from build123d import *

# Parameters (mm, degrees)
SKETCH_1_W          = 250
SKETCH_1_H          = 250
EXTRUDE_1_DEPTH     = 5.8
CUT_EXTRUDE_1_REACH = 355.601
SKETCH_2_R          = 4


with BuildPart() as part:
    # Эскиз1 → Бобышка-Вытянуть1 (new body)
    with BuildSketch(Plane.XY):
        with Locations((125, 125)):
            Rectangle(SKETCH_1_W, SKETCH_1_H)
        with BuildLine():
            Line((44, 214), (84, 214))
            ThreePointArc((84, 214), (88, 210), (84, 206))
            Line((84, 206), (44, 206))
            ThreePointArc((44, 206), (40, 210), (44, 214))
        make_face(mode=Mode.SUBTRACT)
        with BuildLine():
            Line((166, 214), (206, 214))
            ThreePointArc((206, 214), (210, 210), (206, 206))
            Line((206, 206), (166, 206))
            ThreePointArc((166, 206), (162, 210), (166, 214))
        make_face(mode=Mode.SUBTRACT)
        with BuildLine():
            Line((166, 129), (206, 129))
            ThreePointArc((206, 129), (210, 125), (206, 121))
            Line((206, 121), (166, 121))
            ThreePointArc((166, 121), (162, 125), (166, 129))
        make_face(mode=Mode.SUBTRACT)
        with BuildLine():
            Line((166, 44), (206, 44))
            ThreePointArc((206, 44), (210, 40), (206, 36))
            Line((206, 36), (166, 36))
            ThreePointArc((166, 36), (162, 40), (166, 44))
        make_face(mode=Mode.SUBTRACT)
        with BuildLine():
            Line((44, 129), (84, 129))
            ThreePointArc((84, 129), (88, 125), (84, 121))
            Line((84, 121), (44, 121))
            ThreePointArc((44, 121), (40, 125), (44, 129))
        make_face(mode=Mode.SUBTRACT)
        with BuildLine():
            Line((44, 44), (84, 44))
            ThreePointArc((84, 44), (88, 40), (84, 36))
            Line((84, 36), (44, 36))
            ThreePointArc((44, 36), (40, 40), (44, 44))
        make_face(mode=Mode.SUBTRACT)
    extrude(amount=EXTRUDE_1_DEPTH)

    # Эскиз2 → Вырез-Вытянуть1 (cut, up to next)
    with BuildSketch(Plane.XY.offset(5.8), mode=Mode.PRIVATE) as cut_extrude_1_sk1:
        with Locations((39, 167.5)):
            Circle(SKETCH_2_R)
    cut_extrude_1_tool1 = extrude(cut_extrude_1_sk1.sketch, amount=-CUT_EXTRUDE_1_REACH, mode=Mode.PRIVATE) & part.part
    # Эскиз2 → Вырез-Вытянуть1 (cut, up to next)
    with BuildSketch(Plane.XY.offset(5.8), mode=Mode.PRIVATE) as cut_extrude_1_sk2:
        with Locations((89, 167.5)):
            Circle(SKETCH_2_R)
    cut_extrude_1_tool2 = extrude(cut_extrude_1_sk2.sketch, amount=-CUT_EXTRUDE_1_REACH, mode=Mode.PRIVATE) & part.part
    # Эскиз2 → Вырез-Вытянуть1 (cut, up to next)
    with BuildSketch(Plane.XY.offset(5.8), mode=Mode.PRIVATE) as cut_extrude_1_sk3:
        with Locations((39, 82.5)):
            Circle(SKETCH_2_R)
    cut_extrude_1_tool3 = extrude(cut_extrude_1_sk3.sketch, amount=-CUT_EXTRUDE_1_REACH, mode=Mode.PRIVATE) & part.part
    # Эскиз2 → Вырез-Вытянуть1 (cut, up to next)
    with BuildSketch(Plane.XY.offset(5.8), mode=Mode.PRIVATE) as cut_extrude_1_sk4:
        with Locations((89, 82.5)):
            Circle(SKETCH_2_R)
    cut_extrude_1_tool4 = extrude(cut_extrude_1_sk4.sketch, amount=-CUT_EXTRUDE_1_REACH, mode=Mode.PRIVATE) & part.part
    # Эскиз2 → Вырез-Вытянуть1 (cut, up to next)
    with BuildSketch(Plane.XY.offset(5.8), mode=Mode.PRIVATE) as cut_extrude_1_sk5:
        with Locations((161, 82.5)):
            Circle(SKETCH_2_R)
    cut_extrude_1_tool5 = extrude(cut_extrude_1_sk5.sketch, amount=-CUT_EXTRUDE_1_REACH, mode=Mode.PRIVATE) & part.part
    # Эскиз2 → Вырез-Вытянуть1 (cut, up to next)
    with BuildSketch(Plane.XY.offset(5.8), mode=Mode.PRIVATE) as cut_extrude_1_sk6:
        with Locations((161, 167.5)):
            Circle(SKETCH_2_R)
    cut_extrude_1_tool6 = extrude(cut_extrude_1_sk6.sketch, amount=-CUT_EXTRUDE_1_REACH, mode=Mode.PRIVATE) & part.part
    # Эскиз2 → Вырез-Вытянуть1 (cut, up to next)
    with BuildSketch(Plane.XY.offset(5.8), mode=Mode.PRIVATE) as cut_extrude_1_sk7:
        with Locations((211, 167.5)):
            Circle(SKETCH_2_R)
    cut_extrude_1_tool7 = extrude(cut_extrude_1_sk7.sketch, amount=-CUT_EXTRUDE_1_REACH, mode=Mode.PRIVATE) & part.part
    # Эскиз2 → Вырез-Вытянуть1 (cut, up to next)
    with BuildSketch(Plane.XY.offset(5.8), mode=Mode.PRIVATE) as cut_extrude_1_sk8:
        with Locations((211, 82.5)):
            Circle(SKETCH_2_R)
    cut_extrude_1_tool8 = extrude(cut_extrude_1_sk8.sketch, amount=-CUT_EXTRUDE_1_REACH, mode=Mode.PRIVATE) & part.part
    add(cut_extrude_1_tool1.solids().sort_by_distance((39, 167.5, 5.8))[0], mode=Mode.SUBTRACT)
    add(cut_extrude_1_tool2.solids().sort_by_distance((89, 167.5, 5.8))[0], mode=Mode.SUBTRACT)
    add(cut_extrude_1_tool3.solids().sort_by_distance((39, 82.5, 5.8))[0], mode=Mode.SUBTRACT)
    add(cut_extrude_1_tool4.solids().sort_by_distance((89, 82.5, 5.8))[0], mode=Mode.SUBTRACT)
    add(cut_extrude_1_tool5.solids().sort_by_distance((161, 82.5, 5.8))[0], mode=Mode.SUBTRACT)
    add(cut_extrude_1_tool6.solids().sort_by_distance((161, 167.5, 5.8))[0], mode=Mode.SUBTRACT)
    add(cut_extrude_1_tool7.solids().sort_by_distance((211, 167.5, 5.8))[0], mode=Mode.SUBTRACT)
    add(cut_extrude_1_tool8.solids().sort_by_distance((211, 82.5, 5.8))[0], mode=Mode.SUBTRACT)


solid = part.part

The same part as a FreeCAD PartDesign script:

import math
import FreeCAD as App
import Part
import Sketcher
Q = App.Units.Quantity


def add_polygon(sketch, points):
    """Adds a closed chain of lines whose ends are joined by coincident constraints."""
    first, n = sketch.GeometryCount, len(points)
    for a, b in zip(points, points[1:] + points[:1]):
        sketch.addGeometry(Part.LineSegment(App.Vector(*a, 0), App.Vector(*b, 0)), False)
    for i in range(n):
        sketch.addConstraint(Sketcher.Constraint("Coincident", first + i, 2, first + (i + 1) % n, 1))

doc = App.newDocument("Part")
body = doc.addObject("PartDesign::Body", "Body")

# Sketch on XY plane
sketch1 = body.newObject("Sketcher::SketchObject", "Sketch")
sketch1.AttachmentSupport = (doc.getObject("XY_Plane"), [""])
sketch1.MapMode = "FlatFace"
add_polygon(sketch1, [(0, 250), (0, 0), (250, 0), (250, 250)])  # lines 0-3
sketch1.addGeometry(Part.ArcOfCircle(Part.Circle(App.Vector(44, 40, 0), App.Vector(0, 0, 1), 4), math.radians(90), math.radians(270)), False)  # 4
sketch1.addGeometry(Part.LineSegment(App.Vector(44, 44, 0), App.Vector(84, 44, 0)), False)  # 5
sketch1.addGeometry(Part.ArcOfCircle(Part.Circle(App.Vector(84, 40, 0), App.Vector(0, 0, 1), 4), math.radians(-90), math.radians(90)), False)  # 6
sketch1.addGeometry(Part.LineSegment(App.Vector(84, 36, 0), App.Vector(44, 36, 0)), False)  # 7
sketch1.addGeometry(Part.ArcOfCircle(Part.Circle(App.Vector(166, 40, 0), App.Vector(0, 0, 1), 4), math.radians(90), math.radians(270)), False)  # 8
sketch1.addGeometry(Part.LineSegment(App.Vector(166, 44, 0), App.Vector(206, 44, 0)), False)  # 9
sketch1.addGeometry(Part.ArcOfCircle(Part.Circle(App.Vector(206, 40, 0), App.Vector(0, 0, 1), 4), math.radians(-90), math.radians(90)), False)  # 10
sketch1.addGeometry(Part.LineSegment(App.Vector(206, 36, 0), App.Vector(166, 36, 0)), False)  # 11
sketch1.addGeometry(Part.ArcOfCircle(Part.Circle(App.Vector(44, 125, 0), App.Vector(0, 0, 1), 4), math.radians(90), math.radians(270)), False)  # 12
sketch1.addGeometry(Part.LineSegment(App.Vector(44, 129, 0), App.Vector(84, 129, 0)), False)  # 13
sketch1.addGeometry(Part.ArcOfCircle(Part.Circle(App.Vector(84, 125, 0), App.Vector(0, 0, 1), 4), math.radians(-90), math.radians(90)), False)  # 14
sketch1.addGeometry(Part.LineSegment(App.Vector(84, 121, 0), App.Vector(44, 121, 0)), False)  # 15
sketch1.addGeometry(Part.ArcOfCircle(Part.Circle(App.Vector(44, 210, 0), App.Vector(0, 0, 1), 4), math.radians(90), math.radians(270)), False)  # 16
sketch1.addGeometry(Part.LineSegment(App.Vector(44, 214, 0), App.Vector(84, 214, 0)), False)  # 17
sketch1.addGeometry(Part.ArcOfCircle(Part.Circle(App.Vector(84, 210, 0), App.Vector(0, 0, 1), 4), math.radians(-90), math.radians(90)), False)  # 18
sketch1.addGeometry(Part.LineSegment(App.Vector(84, 206, 0), App.Vector(44, 206, 0)), False)  # 19
sketch1.addGeometry(Part.ArcOfCircle(Part.Circle(App.Vector(166, 125, 0), App.Vector(0, 0, 1), 4), math.radians(90), math.radians(270)), False)  # 20
sketch1.addGeometry(Part.LineSegment(App.Vector(166, 129, 0), App.Vector(206, 129, 0)), False)  # 21
sketch1.addGeometry(Part.ArcOfCircle(Part.Circle(App.Vector(206, 125, 0), App.Vector(0, 0, 1), 4), math.radians(-90), math.radians(90)), False)  # 22
sketch1.addGeometry(Part.LineSegment(App.Vector(206, 121, 0), App.Vector(166, 121, 0)), False)  # 23
sketch1.addGeometry(Part.ArcOfCircle(Part.Circle(App.Vector(166, 210, 0), App.Vector(0, 0, 1), 4), math.radians(90), math.radians(270)), False)  # 24
sketch1.addGeometry(Part.LineSegment(App.Vector(166, 214, 0), App.Vector(206, 214, 0)), False)  # 25
sketch1.addGeometry(Part.ArcOfCircle(Part.Circle(App.Vector(206, 210, 0), App.Vector(0, 0, 1), 4), math.radians(-90), math.radians(90)), False)  # 26
sketch1.addGeometry(Part.LineSegment(App.Vector(206, 206, 0), App.Vector(166, 206, 0)), False)  # 27
sketch1.addConstraint(Sketcher.Constraint("Tangent", 4, 1, 5, 1))
sketch1.addConstraint(Sketcher.Constraint("Tangent", 5, 2, 6, 2))
sketch1.addConstraint(Sketcher.Constraint("Tangent", 6, 1, 7, 1))
sketch1.addConstraint(Sketcher.Constraint("Tangent", 7, 2, 4, 2))
sketch1.addConstraint(Sketcher.Constraint("Tangent", 8, 1, 9, 1))
sketch1.addConstraint(Sketcher.Constraint("Tangent", 9, 2, 10, 2))
sketch1.addConstraint(Sketcher.Constraint("Tangent", 10, 1, 11, 1))
sketch1.addConstraint(Sketcher.Constraint("Tangent", 11, 2, 8, 2))
sketch1.addConstraint(Sketcher.Constraint("Tangent", 12, 1, 13, 1))
sketch1.addConstraint(Sketcher.Constraint("Tangent", 13, 2, 14, 2))
sketch1.addConstraint(Sketcher.Constraint("Tangent", 14, 1, 15, 1))
sketch1.addConstraint(Sketcher.Constraint("Tangent", 15, 2, 12, 2))
sketch1.addConstraint(Sketcher.Constraint("Tangent", 16, 1, 17, 1))
sketch1.addConstraint(Sketcher.Constraint("Tangent", 17, 2, 18, 2))
sketch1.addConstraint(Sketcher.Constraint("Tangent", 18, 1, 19, 1))
sketch1.addConstraint(Sketcher.Constraint("Tangent", 19, 2, 16, 2))
sketch1.addConstraint(Sketcher.Constraint("Tangent", 20, 1, 21, 1))
sketch1.addConstraint(Sketcher.Constraint("Tangent", 21, 2, 22, 2))
sketch1.addConstraint(Sketcher.Constraint("Tangent", 22, 1, 23, 1))
sketch1.addConstraint(Sketcher.Constraint("Tangent", 23, 2, 20, 2))
sketch1.addConstraint(Sketcher.Constraint("Tangent", 24, 1, 25, 1))
sketch1.addConstraint(Sketcher.Constraint("Tangent", 25, 2, 26, 2))
sketch1.addConstraint(Sketcher.Constraint("Tangent", 26, 1, 27, 1))
sketch1.addConstraint(Sketcher.Constraint("Tangent", 27, 2, 24, 2))
sketch1.addConstraint(Sketcher.Constraint("Vertical", 0))
sketch1.addConstraint(Sketcher.Constraint("Horizontal", 1))
sketch1.addConstraint(Sketcher.Constraint("Vertical", 2))
sketch1.addConstraint(Sketcher.Constraint("Horizontal", 3))
sketch1.addConstraint(Sketcher.Constraint("Horizontal", 5))
sketch1.addConstraint(Sketcher.Constraint("Horizontal", 7))
sketch1.addConstraint(Sketcher.Constraint("Horizontal", 9))
sketch1.addConstraint(Sketcher.Constraint("Horizontal", 11))
sketch1.addConstraint(Sketcher.Constraint("Horizontal", 13))
sketch1.addConstraint(Sketcher.Constraint("Horizontal", 15))
sketch1.addConstraint(Sketcher.Constraint("Horizontal", 17))
sketch1.addConstraint(Sketcher.Constraint("Horizontal", 19))
sketch1.addConstraint(Sketcher.Constraint("Horizontal", 21))
sketch1.addConstraint(Sketcher.Constraint("Horizontal", 23))
sketch1.addConstraint(Sketcher.Constraint("Horizontal", 25))
sketch1.addConstraint(Sketcher.Constraint("Horizontal", 27))
sketch1.addConstraint(Sketcher.Constraint("Coincident", 0, 2, -1, 1))
sketch1.addConstraint(Sketcher.Constraint("Equal", 6, 8))
sketch1.addConstraint(Sketcher.Constraint("Equal", 10, 12))
sketch1.addConstraint(Sketcher.Constraint("Equal", 14, 16))
sketch1.addConstraint(Sketcher.Constraint("Equal", 18, 20))
sketch1.addConstraint(Sketcher.Constraint("Equal", 22, 24))
sketch1.addConstraint(Sketcher.Constraint("Horizontal", 6, 3, 8, 3))
sketch1.addConstraint(Sketcher.Constraint("Horizontal", 14, 3, 20, 3))
sketch1.addConstraint(Sketcher.Constraint("Horizontal", 18, 3, 24, 3))
sketch1.addConstraint(Sketcher.Constraint("Vertical", 4, 3, 12, 3))
sketch1.addConstraint(Sketcher.Constraint("Vertical", 6, 3, 14, 3))
sketch1.addConstraint(Sketcher.Constraint("Vertical", 12, 3, 16, 3))
sketch1.addConstraint(Sketcher.Constraint("Vertical", 14, 3, 18, 3))
sketch1.addConstraint(Sketcher.Constraint("Vertical", 8, 3, 20, 3))
sketch1.addConstraint(Sketcher.Constraint("Vertical", 10, 3, 22, 3))
sketch1.addConstraint(Sketcher.Constraint("Vertical", 20, 3, 24, 3))
sketch1.addConstraint(Sketcher.Constraint("Vertical", 22, 3, 26, 3))
sketch1.addConstraint(Sketcher.Constraint("Equal", 7, 9))
sketch1.addConstraint(Sketcher.Constraint("Equal", 3, 0))
sketch1.addConstraint(Sketcher.Constraint("Radius", 4, Q("4 mm")))
sketch1.addConstraint(Sketcher.Constraint("DistanceX", 1, 1, 1, 2, Q("250 mm")))
sketch1.addConstraint(Sketcher.Constraint("DistanceX", 5, 1, 5, 2, Q("40 mm")))
sketch1.addConstraint(Sketcher.Constraint("DistanceX", -1, 1, 4, 3, Q("44 mm")))
sketch1.addConstraint(Sketcher.Constraint("DistanceY", -1, 1, 4, 3, Q("40 mm")))
sketch1.addConstraint(Sketcher.Constraint("DistanceX", -1, 1, 8, 3, Q("166 mm")))
sketch1.addConstraint(Sketcher.Constraint("DistanceY", -1, 1, 12, 3, Q("125 mm")))
sketch1.addConstraint(Sketcher.Constraint("DistanceY", -1, 1, 16, 3, Q("210 mm")))
pad1 = body.newObject("PartDesign::Pad", "Pad")
pad1.Profile = sketch1
pad1.Length = 5.8

# Sketch on XY plane
sketch2 = body.newObject("Sketcher::SketchObject", "Sketch001")
sketch2.AttachmentSupport = (doc.getObject("XY_Plane"), [""])
sketch2.MapMode = "FlatFace"
sketch2.AttachmentOffset = App.Placement(App.Vector(0, 0, 5.8), App.Rotation())
sketch2.addGeometry(Part.Circle(App.Vector(39, 167.5, 0), App.Vector(0, 0, 1), 4), False)
sketch2.addConstraint(Sketcher.Constraint("Diameter", 0, Q("8 mm")))
sketch2.addConstraint(Sketcher.Constraint("DistanceX", -1, 1, 0, 3, Q("39 mm")))
sketch2.addConstraint(Sketcher.Constraint("DistanceY", -1, 1, 0, 3, Q("167.5 mm")))
pocket1 = body.newObject("PartDesign::Pocket", "Pocket")
pocket1.Profile = sketch2
pocket1.Type = "UpToFirst"

# Sketch on XY plane
sketch3 = body.newObject("Sketcher::SketchObject", "Sketch002")
sketch3.AttachmentSupport = (doc.getObject("XY_Plane"), [""])
sketch3.MapMode = "FlatFace"
sketch3.AttachmentOffset = App.Placement(App.Vector(0, 0, 5.8), App.Rotation())
sketch3.addGeometry(Part.Circle(App.Vector(89, 167.5, 0), App.Vector(0, 0, 1), 4), False)
sketch3.addConstraint(Sketcher.Constraint("Diameter", 0, Q("8 mm")))
sketch3.addConstraint(Sketcher.Constraint("DistanceX", -1, 1, 0, 3, Q("89 mm")))
sketch3.addConstraint(Sketcher.Constraint("DistanceY", -1, 1, 0, 3, Q("167.5 mm")))
pocket2 = body.newObject("PartDesign::Pocket", "Pocket001")
pocket2.Profile = sketch3
pocket2.Type = "UpToFirst"

# Sketch on XY plane
sketch4 = body.newObject("Sketcher::SketchObject", "Sketch003")
sketch4.AttachmentSupport = (doc.getObject("XY_Plane"), [""])
sketch4.MapMode = "FlatFace"
sketch4.AttachmentOffset = App.Placement(App.Vector(0, 0, 5.8), App.Rotation())
sketch4.addGeometry(Part.Circle(App.Vector(39, 82.5, 0), App.Vector(0, 0, 1), 4), False)
sketch4.addConstraint(Sketcher.Constraint("Diameter", 0, Q("8 mm")))
sketch4.addConstraint(Sketcher.Constraint("DistanceX", -1, 1, 0, 3, Q("39 mm")))
sketch4.addConstraint(Sketcher.Constraint("DistanceY", -1, 1, 0, 3, Q("82.5 mm")))
pocket3 = body.newObject("PartDesign::Pocket", "Pocket002")
pocket3.Profile = sketch4
pocket3.Type = "UpToFirst"

# Sketch on XY plane
sketch5 = body.newObject("Sketcher::SketchObject", "Sketch004")
sketch5.AttachmentSupport = (doc.getObject("XY_Plane"), [""])
sketch5.MapMode = "FlatFace"
sketch5.AttachmentOffset = App.Placement(App.Vector(0, 0, 5.8), App.Rotation())
sketch5.addGeometry(Part.Circle(App.Vector(89, 82.5, 0), App.Vector(0, 0, 1), 4), False)
sketch5.addConstraint(Sketcher.Constraint("Diameter", 0, Q("8 mm")))
sketch5.addConstraint(Sketcher.Constraint("DistanceX", -1, 1, 0, 3, Q("89 mm")))
sketch5.addConstraint(Sketcher.Constraint("DistanceY", -1, 1, 0, 3, Q("82.5 mm")))
pocket4 = body.newObject("PartDesign::Pocket", "Pocket003")
pocket4.Profile = sketch5
pocket4.Type = "UpToFirst"

# Sketch on XY plane
sketch6 = body.newObject("Sketcher::SketchObject", "Sketch005")
sketch6.AttachmentSupport = (doc.getObject("XY_Plane"), [""])
sketch6.MapMode = "FlatFace"
sketch6.AttachmentOffset = App.Placement(App.Vector(0, 0, 5.8), App.Rotation())
sketch6.addGeometry(Part.Circle(App.Vector(161, 82.5, 0), App.Vector(0, 0, 1), 4), False)
sketch6.addConstraint(Sketcher.Constraint("Diameter", 0, Q("8 mm")))
sketch6.addConstraint(Sketcher.Constraint("DistanceX", -1, 1, 0, 3, Q("161 mm")))
sketch6.addConstraint(Sketcher.Constraint("DistanceY", -1, 1, 0, 3, Q("82.5 mm")))
pocket5 = body.newObject("PartDesign::Pocket", "Pocket004")
pocket5.Profile = sketch6
pocket5.Type = "UpToFirst"

# Sketch on XY plane
sketch7 = body.newObject("Sketcher::SketchObject", "Sketch006")
sketch7.AttachmentSupport = (doc.getObject("XY_Plane"), [""])
sketch7.MapMode = "FlatFace"
sketch7.AttachmentOffset = App.Placement(App.Vector(0, 0, 5.8), App.Rotation())
sketch7.addGeometry(Part.Circle(App.Vector(161, 167.5, 0), App.Vector(0, 0, 1), 4), False)
sketch7.addConstraint(Sketcher.Constraint("Diameter", 0, Q("8 mm")))
sketch7.addConstraint(Sketcher.Constraint("DistanceX", -1, 1, 0, 3, Q("161 mm")))
sketch7.addConstraint(Sketcher.Constraint("DistanceY", -1, 1, 0, 3, Q("167.5 mm")))
pocket6 = body.newObject("PartDesign::Pocket", "Pocket005")
pocket6.Profile = sketch7
pocket6.Type = "UpToFirst"

# Sketch on XY plane
sketch8 = body.newObject("Sketcher::SketchObject", "Sketch007")
sketch8.AttachmentSupport = (doc.getObject("XY_Plane"), [""])
sketch8.MapMode = "FlatFace"
sketch8.AttachmentOffset = App.Placement(App.Vector(0, 0, 5.8), App.Rotation())
sketch8.addGeometry(Part.Circle(App.Vector(211, 167.5, 0), App.Vector(0, 0, 1), 4), False)
sketch8.addConstraint(Sketcher.Constraint("Diameter", 0, Q("8 mm")))
sketch8.addConstraint(Sketcher.Constraint("DistanceX", -1, 1, 0, 3, Q("211 mm")))
sketch8.addConstraint(Sketcher.Constraint("DistanceY", -1, 1, 0, 3, Q("167.5 mm")))
pocket7 = body.newObject("PartDesign::Pocket", "Pocket006")
pocket7.Profile = sketch8
pocket7.Type = "UpToFirst"

# Sketch on XY plane
sketch9 = body.newObject("Sketcher::SketchObject", "Sketch008")
sketch9.AttachmentSupport = (doc.getObject("XY_Plane"), [""])
sketch9.MapMode = "FlatFace"
sketch9.AttachmentOffset = App.Placement(App.Vector(0, 0, 5.8), App.Rotation())
sketch9.addGeometry(Part.Circle(App.Vector(211, 82.5, 0), App.Vector(0, 0, 1), 4), False)
sketch9.addConstraint(Sketcher.Constraint("Diameter", 0, Q("8 mm")))
sketch9.addConstraint(Sketcher.Constraint("DistanceX", -1, 1, 0, 3, Q("211 mm")))
sketch9.addConstraint(Sketcher.Constraint("DistanceY", -1, 1, 0, 3, Q("82.5 mm")))
pocket8 = body.newObject("PartDesign::Pocket", "Pocket007")
pocket8.Profile = sketch9
pocket8.Type = "UpToFirst"

doc.recompute()
